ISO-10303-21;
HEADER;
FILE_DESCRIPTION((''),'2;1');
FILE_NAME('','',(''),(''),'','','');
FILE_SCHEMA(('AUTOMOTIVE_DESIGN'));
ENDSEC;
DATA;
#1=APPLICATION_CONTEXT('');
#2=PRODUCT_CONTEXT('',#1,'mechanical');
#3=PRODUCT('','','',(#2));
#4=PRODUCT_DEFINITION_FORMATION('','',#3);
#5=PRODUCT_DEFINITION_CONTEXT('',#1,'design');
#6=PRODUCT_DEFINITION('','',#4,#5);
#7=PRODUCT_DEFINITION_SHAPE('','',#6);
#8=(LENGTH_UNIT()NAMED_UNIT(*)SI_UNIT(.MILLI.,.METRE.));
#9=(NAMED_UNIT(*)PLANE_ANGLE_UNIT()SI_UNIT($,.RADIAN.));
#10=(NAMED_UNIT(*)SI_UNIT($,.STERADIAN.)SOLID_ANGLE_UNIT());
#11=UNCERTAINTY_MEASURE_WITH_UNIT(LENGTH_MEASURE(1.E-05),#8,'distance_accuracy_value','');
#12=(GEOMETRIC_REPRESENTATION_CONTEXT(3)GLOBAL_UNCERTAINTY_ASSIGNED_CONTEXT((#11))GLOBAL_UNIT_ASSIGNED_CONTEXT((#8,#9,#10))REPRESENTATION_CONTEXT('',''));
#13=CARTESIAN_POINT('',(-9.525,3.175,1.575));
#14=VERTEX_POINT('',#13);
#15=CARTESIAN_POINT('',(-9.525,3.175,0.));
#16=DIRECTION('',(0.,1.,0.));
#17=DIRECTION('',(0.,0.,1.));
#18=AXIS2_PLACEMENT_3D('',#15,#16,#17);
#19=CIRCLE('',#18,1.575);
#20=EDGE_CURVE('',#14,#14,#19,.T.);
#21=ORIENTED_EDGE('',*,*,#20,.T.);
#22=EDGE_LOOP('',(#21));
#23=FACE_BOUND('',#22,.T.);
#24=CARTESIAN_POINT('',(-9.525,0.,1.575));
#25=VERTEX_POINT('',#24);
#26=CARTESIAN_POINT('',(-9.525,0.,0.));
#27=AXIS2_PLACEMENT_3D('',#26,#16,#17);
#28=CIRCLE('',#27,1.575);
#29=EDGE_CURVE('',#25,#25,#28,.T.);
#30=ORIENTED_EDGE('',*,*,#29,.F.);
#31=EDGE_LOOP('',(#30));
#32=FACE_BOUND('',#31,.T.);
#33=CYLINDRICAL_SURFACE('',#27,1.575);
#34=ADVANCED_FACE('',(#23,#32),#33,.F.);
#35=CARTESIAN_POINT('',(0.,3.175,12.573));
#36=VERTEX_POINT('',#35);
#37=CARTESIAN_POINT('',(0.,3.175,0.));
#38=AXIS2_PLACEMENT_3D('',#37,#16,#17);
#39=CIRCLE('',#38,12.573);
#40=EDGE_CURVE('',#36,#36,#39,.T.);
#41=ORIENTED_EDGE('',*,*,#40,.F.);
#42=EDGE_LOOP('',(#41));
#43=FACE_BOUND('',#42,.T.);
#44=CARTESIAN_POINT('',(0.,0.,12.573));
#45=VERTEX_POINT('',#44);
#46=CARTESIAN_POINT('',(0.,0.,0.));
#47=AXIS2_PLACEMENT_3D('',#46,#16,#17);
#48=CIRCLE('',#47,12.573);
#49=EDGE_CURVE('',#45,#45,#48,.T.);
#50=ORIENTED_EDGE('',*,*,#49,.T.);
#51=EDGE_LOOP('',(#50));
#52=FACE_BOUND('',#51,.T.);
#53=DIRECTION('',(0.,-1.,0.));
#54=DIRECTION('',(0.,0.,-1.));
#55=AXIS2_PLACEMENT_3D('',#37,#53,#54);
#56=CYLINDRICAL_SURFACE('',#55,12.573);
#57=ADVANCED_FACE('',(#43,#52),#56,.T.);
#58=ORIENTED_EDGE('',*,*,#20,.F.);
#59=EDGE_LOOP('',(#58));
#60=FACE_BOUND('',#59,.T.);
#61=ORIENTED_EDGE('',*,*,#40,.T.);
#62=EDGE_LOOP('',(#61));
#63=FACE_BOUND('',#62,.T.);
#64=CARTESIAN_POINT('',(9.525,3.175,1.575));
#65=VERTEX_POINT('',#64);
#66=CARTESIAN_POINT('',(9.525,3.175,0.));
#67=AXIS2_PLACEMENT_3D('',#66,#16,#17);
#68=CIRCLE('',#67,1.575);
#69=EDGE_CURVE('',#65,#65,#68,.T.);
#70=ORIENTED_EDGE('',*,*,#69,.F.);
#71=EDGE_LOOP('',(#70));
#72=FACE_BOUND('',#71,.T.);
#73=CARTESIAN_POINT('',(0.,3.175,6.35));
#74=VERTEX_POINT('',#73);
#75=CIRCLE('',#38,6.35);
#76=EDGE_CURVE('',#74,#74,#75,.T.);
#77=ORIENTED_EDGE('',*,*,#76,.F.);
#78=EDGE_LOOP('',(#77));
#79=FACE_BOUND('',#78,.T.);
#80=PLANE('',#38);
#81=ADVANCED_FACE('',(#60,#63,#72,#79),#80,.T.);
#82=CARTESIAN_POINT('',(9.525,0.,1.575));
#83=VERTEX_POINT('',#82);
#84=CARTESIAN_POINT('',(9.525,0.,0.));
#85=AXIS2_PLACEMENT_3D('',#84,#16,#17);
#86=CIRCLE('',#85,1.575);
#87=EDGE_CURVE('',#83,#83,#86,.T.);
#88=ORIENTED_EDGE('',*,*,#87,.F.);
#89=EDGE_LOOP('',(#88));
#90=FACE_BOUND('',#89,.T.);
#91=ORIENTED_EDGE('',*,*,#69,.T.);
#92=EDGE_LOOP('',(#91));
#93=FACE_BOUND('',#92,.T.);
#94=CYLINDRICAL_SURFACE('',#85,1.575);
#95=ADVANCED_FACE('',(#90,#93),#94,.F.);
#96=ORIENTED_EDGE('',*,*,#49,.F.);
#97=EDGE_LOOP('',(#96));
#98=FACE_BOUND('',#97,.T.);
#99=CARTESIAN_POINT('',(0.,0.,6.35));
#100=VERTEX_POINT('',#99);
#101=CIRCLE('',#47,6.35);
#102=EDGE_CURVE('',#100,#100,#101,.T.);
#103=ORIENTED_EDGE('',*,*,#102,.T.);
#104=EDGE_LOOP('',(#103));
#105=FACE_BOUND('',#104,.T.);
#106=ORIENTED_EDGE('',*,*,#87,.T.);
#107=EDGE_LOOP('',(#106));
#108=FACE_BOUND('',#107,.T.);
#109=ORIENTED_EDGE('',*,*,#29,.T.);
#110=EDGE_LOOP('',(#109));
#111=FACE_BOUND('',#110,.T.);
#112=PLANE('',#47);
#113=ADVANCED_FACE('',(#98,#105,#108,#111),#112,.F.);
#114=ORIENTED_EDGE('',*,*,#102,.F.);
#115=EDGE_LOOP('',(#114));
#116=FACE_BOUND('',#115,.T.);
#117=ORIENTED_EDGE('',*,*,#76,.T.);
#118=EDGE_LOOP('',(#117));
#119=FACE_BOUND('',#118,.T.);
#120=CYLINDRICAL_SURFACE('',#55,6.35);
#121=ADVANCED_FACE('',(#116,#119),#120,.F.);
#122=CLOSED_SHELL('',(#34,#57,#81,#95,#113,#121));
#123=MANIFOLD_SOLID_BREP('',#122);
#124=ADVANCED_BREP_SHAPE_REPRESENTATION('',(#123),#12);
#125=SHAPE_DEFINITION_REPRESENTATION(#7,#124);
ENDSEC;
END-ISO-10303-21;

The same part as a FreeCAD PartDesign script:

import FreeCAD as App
import Part
import Sketcher
Q = App.Units.Quantity

doc = App.newDocument("Part")
body = doc.addObject("PartDesign::Body", "Body")

sketch1 = body.newObject("Sketcher::SketchObject", "Sketch")
sketch1.AttachmentSupport = (doc.getObject("XZ_Plane"), [""])
sketch1.MapMode = "FlatFace"
sketch1.addGeometry(Part.Circle(App.Vector(0, 0, 0), App.Vector(0, 0, 1), 13), False)
sketch1.addGeometry(Part.Circle(App.Vector(0, 0, 0), App.Vector(0, 0, 1), 6), False)
sketch1.addConstraint(Sketcher.Constraint("Coincident", 0, 3, -1, 1))
sketch1.addConstraint(Sketcher.Constraint("Coincident", 1, 3, -1, 1))
sketch1.addConstraint(Sketcher.Constraint("Diameter", 1, Q("0.5 in")))
sketch1.addConstraint(Sketcher.Constraint("Diameter", 0, Q("0.99 in")))
pad1 = body.newObject("PartDesign::Pad", "Pad")
pad1.Profile = sketch1
pad1.Length = Q("0.125 in")
pad1.Reversed = True

sketch2 = body.newObject("Sketcher::SketchObject", "Sketch001")
sketch2.AttachmentSupport = (doc.getObject("XZ_Plane"), [""])
sketch2.MapMode = "FlatFace"
sketch2.AttachmentOffset = App.Placement(App.Vector(0, 0, -0.125 * 25.4), App.Rotation())
sketch2.addGeometry(Part.Circle(App.Vector(9.5, 0, 0), App.Vector(0, 0, 1), 1.6), False)
sketch2.addGeometry(Part.Circle(App.Vector(-9.5, 0, 0), App.Vector(0, 0, 1), 1.6), False)
sketch2.addConstraint(Sketcher.Constraint("Equal", 0, 1))
sketch2.addConstraint(Sketcher.Constraint("Symmetric", 0, 3, 1, 3, -1, 1))
sketch2.addConstraint(Sketcher.Constraint("PointOnObject", 0, 3, -1))
sketch2.addConstraint(Sketcher.Constraint("Diameter", 0, 3.15))
sketch2.addConstraint(Sketcher.Constraint("DistanceX", 1, 3, 0, 3, Q("0.75 in")))
pocket1 = body.newObject("PartDesign::Pocket", "Pocket")
pocket1.Profile = sketch2
pocket1.Type = "ThroughAll"
pocket1.Reversed = True

doc.recompute()
